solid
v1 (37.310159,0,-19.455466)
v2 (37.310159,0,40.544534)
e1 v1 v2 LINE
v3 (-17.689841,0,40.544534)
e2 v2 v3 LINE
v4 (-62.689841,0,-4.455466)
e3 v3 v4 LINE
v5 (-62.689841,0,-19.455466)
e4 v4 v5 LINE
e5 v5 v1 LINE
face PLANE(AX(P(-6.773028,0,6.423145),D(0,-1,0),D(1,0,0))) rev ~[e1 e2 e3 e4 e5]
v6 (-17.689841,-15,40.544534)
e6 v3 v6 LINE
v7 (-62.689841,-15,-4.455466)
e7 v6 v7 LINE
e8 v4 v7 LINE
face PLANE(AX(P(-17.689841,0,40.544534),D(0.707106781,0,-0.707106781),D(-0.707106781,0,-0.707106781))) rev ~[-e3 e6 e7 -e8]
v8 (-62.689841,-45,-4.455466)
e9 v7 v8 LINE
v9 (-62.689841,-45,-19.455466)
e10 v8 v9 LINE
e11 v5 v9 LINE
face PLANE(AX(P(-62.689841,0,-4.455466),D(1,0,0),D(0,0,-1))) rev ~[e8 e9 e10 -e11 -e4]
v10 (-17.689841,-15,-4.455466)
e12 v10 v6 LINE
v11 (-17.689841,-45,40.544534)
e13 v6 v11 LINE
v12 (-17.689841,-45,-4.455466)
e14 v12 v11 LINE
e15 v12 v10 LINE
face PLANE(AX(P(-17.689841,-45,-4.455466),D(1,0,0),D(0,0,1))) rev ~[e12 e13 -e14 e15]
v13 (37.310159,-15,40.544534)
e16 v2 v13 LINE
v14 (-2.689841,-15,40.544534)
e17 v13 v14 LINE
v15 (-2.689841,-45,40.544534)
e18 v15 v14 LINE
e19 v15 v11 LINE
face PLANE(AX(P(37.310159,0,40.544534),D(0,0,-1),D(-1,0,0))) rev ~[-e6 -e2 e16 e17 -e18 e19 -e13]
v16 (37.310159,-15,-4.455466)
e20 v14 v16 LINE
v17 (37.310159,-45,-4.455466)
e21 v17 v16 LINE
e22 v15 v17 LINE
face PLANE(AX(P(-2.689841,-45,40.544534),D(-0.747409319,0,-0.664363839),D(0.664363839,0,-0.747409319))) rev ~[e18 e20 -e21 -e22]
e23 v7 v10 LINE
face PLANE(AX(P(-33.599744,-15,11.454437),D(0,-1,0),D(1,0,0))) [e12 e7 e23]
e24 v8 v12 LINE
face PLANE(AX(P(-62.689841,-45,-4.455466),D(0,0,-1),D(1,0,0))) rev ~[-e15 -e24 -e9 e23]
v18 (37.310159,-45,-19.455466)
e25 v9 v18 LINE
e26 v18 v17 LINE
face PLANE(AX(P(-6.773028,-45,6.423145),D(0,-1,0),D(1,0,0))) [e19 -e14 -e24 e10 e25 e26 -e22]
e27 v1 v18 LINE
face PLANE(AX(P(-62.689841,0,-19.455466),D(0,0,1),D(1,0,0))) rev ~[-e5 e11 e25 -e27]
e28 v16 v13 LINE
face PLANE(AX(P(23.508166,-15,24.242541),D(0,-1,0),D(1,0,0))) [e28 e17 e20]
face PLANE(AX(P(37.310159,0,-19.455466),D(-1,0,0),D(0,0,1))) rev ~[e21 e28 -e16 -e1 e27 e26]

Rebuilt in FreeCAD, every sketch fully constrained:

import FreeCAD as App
import Part
import Sketcher
from FreeCAD import Vector

doc = App.newDocument("Part")
body = doc.addObject("PartDesign::Body", "Body")

sketch1 = body.newObject("Sketcher::SketchObject", "Sketch")
sketch1.AttachmentSupport = (doc.getObject("XZ_Plane"), [""])
sketch1.MapMode = "FlatFace"
sketch1.addGeometry([
    Part.LineSegment(Vector(-18, 41, 0), Vector(-63, -4, 0)),
    Part.LineSegment(Vector(-63, -4, 0), Vector(-63, -19, 0)),
    Part.LineSegment(Vector(-63, -19, 0), Vector(37, -19, 0)),
    Part.LineSegment(Vector(37, -19, 0), Vector(37, 41, 0)),
    Part.LineSegment(Vector(37, 41, 0), Vector(-18, 41, 0)),
], False)
sketch1.addConstraint([
    Sketcher.Constraint("Coincident", 0, 2, 1, 1),
    Sketcher.Constraint("Coincident", 1, 2, 2, 1),
    Sketcher.Constraint("Coincident", 2, 2, 3, 1),
    Sketcher.Constraint("Coincident", 3, 2, 4, 1),
    Sketcher.Constraint("Coincident", 4, 2, 0, 1),
    Sketcher.Constraint("Vertical", 1),
    Sketcher.Constraint("Horizontal", 2),
    Sketcher.Constraint("Vertical", 3),
    Sketcher.Constraint("Horizontal", 4),
    Sketcher.Constraint("DistanceX", 2, 1, 2, 2, 100.0),
    Sketcher.Constraint("DistanceX", 4, 2, 4, 1, 55.0),
    Sketcher.Constraint("DistanceY", 1, 2, 1, 1, 15.0),
    Sketcher.Constraint("DistanceY", 3, 1, 3, 2, 60.0),
    Sketcher.Constraint("DistanceX", 0, 2, -1, 1, 62.689841),
    Sketcher.Constraint("DistanceY", 0, 2, -1, 1, 4.455466),
])
pad1 = body.newObject("PartDesign::Pad", "Pad")
pad1.Profile = sketch1
pad1.Length = 45

sketch2 = body.newObject("Sketcher::SketchObject", "Sketch001")
sketch2.AttachmentSupport = (doc.getObject("XZ_Plane"), [""])
sketch2.MapMode = "FlatFace"
sketch2.AttachmentOffset = App.Placement(Vector(0, 0, 45), App.Rotation())
sketch2.addGeometry([
    Part.LineSegment(Vector(-18, -4, 0), Vector(-18, 41, 0)),
    Part.LineSegment(Vector(-18, 41, 0), Vector(-63, -4, 0)),
    Part.LineSegment(Vector(-63, -4, 0), Vector(-18, -4, 0)),
], False)
sketch2.addConstraint([
    Sketcher.Constraint("Coincident", 0, 2, 1, 1),
    Sketcher.Constraint("Coincident", 1, 2, 2, 1),
    Sketcher.Constraint("Coincident", 2, 2, 0, 1),
    Sketcher.Constraint("Vertical", 0),
    Sketcher.Constraint("Horizontal", 2),
    Sketcher.Constraint("Equal", 2, 0),
    Sketcher.Constraint("DistanceX", 2, 1, 2, 2, 45.0),
    Sketcher.Constraint("DistanceX", 0, 2, -1, 1, 17.689841),
    Sketcher.Constraint("DistanceY", -1, 1, 0, 2, 40.544534),
])
pocket1 = body.newObject("PartDesign::Pocket", "Pocket")
pocket1.Profile = sketch2
pocket1.Length = 30

sketch3 = body.newObject("Sketcher::SketchObject", "Sketch002")
sketch3.AttachmentSupport = (doc.getObject("XZ_Plane"), [""])
sketch3.MapMode = "FlatFace"
sketch3.AttachmentOffset = App.Placement(Vector(0, 0, 45), App.Rotation())
sketch3.addGeometry([
    Part.LineSegment(Vector(37, 41, 0), Vector(-3, 41, 0)),
    Part.LineSegment(Vector(-3, 41, 0), Vector(37, -4, 0)),
    Part.LineSegment(Vector(37, -4, 0), Vector(37, 41, 0)),
], False)
sketch3.addConstraint([
    Sketcher.Constraint("Coincident", 0, 2, 1, 1),
    Sketcher.Constraint("Coincident", 1, 2, 2, 1),
    Sketcher.Constraint("Coincident", 2, 2, 0, 1),
    Sketcher.Constraint("Horizontal", 0),
    Sketcher.Constraint("Vertical", 2),
    Sketcher.Constraint("DistanceX", 0, 2, 0, 1, 40.0),
    Sketcher.Constraint("DistanceY", 2, 1, 2, 2, 45.0),
    Sketcher.Constraint("DistanceX", 0, 2, -1, 1, 2.689841),
    Sketcher.Constraint("DistanceY", -1, 1, 0, 2, 40.544534),
])
pocket2 = body.newObject("PartDesign::Pocket", "Pocket001")
pocket2.Profile = sketch3
pocket2.Length = 30

doc.recompute()
